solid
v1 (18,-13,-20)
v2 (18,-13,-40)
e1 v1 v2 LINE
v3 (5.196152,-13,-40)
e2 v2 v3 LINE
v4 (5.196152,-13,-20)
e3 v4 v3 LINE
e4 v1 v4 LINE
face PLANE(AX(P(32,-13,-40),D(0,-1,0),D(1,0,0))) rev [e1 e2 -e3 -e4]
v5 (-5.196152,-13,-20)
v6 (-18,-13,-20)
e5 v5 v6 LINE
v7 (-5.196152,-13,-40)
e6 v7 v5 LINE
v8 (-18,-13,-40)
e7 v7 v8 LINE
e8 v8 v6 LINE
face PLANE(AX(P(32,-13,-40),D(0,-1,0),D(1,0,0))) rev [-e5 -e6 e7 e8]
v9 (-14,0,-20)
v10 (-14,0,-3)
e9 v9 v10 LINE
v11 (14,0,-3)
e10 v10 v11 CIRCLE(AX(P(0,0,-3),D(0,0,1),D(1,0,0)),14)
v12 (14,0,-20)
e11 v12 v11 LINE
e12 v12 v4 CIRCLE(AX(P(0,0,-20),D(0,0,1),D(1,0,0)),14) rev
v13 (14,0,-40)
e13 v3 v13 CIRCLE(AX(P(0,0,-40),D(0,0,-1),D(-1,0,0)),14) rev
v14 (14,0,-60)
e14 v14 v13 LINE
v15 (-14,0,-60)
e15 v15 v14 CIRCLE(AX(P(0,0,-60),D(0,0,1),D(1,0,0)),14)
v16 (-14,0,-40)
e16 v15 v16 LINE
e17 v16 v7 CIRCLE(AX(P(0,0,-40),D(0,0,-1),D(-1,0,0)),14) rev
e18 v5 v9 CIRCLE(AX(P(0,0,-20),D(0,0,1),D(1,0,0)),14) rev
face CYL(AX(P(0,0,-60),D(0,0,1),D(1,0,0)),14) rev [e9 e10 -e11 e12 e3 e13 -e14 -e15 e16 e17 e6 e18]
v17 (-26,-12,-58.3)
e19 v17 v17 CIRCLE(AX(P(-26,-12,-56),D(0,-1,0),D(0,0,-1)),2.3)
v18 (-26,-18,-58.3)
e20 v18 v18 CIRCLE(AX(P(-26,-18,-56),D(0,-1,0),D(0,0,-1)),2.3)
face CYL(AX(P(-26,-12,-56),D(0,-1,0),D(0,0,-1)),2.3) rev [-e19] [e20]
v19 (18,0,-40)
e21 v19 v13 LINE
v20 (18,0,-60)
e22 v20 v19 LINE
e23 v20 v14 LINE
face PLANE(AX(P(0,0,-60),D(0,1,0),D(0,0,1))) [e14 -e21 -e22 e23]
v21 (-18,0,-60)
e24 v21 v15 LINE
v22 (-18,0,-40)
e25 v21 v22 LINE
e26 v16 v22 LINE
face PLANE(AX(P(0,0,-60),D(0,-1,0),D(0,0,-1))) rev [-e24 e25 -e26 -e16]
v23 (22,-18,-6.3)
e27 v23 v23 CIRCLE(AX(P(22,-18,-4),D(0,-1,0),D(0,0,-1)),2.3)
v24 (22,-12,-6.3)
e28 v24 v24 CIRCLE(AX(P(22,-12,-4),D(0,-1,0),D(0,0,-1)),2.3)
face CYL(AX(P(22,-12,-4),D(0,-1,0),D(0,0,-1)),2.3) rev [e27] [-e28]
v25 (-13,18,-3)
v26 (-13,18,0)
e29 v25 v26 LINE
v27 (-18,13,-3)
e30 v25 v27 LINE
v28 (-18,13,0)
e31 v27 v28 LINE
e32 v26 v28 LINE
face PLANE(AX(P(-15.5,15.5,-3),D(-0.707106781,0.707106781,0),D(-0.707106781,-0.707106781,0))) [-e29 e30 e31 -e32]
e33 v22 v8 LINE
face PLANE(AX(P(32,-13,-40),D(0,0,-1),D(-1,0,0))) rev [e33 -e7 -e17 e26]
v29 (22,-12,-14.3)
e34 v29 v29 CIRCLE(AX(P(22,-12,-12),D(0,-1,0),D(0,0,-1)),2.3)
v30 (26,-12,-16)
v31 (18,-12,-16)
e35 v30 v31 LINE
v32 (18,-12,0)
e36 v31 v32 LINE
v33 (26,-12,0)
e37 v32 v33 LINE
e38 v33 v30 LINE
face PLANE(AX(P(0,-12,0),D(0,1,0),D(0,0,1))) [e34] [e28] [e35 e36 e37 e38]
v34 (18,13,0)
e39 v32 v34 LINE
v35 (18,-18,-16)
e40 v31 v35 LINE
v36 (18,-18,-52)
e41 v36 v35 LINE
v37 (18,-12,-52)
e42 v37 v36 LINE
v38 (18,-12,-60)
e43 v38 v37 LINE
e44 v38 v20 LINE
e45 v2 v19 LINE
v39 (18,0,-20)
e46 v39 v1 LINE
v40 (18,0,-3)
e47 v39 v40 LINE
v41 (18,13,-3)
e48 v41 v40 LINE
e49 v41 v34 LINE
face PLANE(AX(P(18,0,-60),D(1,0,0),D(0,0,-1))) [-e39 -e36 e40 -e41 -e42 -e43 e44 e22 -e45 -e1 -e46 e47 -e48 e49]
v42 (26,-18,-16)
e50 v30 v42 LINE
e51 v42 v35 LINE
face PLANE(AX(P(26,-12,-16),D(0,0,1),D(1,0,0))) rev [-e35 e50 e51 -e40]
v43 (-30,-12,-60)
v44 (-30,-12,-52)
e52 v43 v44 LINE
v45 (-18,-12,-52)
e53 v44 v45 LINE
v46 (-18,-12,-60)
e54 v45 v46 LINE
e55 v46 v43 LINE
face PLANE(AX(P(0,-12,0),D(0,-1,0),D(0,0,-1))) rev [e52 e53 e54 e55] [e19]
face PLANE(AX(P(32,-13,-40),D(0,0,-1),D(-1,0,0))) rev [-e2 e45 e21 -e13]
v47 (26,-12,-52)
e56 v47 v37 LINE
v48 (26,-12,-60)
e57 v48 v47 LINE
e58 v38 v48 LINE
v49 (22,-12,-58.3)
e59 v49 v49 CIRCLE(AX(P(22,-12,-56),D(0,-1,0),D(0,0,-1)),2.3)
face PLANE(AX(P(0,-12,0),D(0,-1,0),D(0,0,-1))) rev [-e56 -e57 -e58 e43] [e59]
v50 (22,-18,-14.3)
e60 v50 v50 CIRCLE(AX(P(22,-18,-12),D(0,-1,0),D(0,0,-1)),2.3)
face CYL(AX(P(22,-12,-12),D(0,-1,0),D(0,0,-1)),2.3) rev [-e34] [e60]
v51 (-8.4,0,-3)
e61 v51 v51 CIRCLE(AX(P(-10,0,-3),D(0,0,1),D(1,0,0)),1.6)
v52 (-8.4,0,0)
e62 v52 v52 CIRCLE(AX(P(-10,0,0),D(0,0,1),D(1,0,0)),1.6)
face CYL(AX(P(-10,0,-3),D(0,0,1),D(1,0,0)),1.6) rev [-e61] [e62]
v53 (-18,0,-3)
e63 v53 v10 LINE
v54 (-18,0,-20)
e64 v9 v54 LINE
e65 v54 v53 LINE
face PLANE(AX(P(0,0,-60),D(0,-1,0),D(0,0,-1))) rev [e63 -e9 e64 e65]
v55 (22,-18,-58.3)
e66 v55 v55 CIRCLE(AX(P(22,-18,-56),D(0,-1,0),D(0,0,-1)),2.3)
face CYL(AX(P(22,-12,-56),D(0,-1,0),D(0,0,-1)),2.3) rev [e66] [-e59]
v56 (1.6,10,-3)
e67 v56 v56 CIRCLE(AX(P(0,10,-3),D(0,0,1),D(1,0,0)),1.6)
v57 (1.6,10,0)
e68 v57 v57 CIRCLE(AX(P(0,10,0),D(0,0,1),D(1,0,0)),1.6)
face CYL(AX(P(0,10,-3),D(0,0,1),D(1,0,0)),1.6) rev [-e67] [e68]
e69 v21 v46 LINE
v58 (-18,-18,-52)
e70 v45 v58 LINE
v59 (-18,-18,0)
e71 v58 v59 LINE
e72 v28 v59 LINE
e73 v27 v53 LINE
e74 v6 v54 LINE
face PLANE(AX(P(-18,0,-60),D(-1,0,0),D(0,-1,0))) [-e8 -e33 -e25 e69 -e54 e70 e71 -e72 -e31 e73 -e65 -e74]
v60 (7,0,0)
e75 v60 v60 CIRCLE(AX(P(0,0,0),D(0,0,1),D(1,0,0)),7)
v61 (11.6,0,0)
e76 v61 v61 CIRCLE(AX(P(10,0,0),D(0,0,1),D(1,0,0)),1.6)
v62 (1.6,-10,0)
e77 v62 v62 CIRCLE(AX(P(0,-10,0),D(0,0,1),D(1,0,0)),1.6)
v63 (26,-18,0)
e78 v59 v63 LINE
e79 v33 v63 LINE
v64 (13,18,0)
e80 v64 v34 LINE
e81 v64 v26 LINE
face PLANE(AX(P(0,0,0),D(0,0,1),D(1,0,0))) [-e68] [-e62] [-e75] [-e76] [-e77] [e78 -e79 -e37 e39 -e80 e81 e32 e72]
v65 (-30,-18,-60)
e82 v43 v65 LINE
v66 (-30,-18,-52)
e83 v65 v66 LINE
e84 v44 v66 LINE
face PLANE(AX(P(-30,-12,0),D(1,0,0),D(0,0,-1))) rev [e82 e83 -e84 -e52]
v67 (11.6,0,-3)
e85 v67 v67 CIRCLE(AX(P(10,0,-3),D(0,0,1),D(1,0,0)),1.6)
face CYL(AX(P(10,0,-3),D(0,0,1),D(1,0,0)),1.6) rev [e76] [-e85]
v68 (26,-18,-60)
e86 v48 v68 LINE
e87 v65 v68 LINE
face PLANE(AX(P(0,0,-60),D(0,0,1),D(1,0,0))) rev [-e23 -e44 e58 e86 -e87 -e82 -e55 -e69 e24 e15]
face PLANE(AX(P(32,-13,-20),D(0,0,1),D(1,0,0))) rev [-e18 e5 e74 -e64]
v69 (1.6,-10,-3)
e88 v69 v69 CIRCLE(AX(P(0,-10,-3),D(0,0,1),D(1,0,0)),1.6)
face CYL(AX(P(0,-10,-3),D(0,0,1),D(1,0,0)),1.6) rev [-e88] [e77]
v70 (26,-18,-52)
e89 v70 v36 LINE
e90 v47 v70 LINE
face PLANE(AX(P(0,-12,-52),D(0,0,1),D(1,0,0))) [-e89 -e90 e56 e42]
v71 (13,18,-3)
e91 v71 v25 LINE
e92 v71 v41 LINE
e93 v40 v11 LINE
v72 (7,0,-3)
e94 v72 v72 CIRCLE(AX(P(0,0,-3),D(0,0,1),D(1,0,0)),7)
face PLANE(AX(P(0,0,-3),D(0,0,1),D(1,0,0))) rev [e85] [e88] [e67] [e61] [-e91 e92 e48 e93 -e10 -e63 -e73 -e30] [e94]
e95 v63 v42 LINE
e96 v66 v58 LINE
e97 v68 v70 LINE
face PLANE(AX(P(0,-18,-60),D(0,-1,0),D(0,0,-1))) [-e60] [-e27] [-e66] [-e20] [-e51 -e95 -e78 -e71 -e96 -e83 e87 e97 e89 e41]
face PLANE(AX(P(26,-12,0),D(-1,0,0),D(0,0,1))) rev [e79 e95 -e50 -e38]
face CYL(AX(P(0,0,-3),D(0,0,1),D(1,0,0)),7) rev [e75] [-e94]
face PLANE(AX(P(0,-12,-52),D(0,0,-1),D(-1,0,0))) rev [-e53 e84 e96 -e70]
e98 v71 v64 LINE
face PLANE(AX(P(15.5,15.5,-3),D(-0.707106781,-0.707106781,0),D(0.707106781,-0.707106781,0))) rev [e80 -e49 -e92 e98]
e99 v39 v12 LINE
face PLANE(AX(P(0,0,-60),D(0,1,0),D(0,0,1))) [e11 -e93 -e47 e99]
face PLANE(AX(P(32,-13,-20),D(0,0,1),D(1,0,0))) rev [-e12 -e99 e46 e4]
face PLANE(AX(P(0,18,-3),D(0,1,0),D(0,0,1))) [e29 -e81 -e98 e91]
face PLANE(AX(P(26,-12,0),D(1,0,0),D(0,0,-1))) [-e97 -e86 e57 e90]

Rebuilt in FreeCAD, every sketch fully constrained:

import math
import FreeCAD as App
import Part
import Sketcher

doc = App.newDocument("Part")
body = doc.addObject("PartDesign::Body", "Body")

sketch1 = body.newObject("Sketcher::SketchObject", "Sketch")
sketch1.AttachmentSupport = (doc.getObject("XY_Plane"), [""])
sketch1.MapMode = "FlatFace"
sketch1.addGeometry(Part.LineSegment(App.Vector(18, -18, 0), App.Vector(18, 0, 0)), False)
sketch1.addGeometry(Part.LineSegment(App.Vector(18, 0, 0), App.Vector(14, 0, 0)), False)
sketch1.addGeometry(Part.ArcOfCircle(Part.Circle(App.Vector(0, 0, 0), App.Vector(0, 0, 1), 14), math.radians(180), math.radians(360)), False)
sketch1.addGeometry(Part.LineSegment(App.Vector(-14, 0, 0), App.Vector(-18, 0, 0)), False)
sketch1.addGeometry(Part.LineSegment(App.Vector(-18, 0, 0), App.Vector(-18, -18, 0)), False)
sketch1.addGeometry(Part.LineSegment(App.Vector(-18, -18, 0), App.Vector(18, -18, 0)), False)
sketch1.addConstraint(Sketcher.Constraint("Coincident", 0, 2, 1, 1))
sketch1.addConstraint(Sketcher.Constraint("Coincident", 1, 2, 2, 2))
sketch1.addConstraint(Sketcher.Constraint("Coincident", 2, 1, 3, 1))
sketch1.addConstraint(Sketcher.Constraint("Coincident", 3, 2, 4, 1))
sketch1.addConstraint(Sketcher.Constraint("Coincident", 4, 2, 5, 1))
sketch1.addConstraint(Sketcher.Constraint("Coincident", 5, 2, 0, 1))
sketch1.addConstraint(Sketcher.Constraint("Vertical", 0))
sketch1.addConstraint(Sketcher.Constraint("Horizontal", 1))
sketch1.addConstraint(Sketcher.Constraint("Horizontal", 3))
sketch1.addConstraint(Sketcher.Constraint("Vertical", 4))
sketch1.addConstraint(Sketcher.Constraint("Horizontal", 5))
sketch1.addConstraint(Sketcher.Constraint("Coincident", 2, 3, -1, 1))
sketch1.addConstraint(Sketcher.Constraint("Symmetric", 0, 2, 3, 2, -1, 1))
sketch1.addConstraint(Sketcher.Constraint("PointOnObject", 0, 2, -1))
sketch1.addConstraint(Sketcher.Constraint("Radius", 2, 14.0))
sketch1.addConstraint(Sketcher.Constraint("DistanceX", 1, 2, 1, 1, 4.0))
sketch1.addConstraint(Sketcher.Constraint("DistanceY", 0, 1, 0, 2, 18.0))
pad1 = body.newObject("PartDesign::Pad", "Pad")
pad1.Profile = sketch1
pad1.Length = 60
pad1.Reversed = True

sketch2 = body.newObject("Sketcher::SketchObject", "Sketch001")
sketch2.AttachmentSupport = (doc.getObject("XY_Plane"), [""])
sketch2.MapMode = "FlatFace"
sketch2.addGeometry(Part.LineSegment(App.Vector(-13, 18, 0), App.Vector(-18, 13, 0)), False)
sketch2.addGeometry(Part.LineSegment(App.Vector(-18, 13, 0), App.Vector(-18, 0, 0)), False)
sketch2.addGeometry(Part.LineSegment(App.Vector(-18, 0, 0), App.Vector(-14, 0, 0)), False)
sketch2.addGeometry(Part.ArcOfCircle(Part.Circle(App.Vector(0, 0, 0), App.Vector(0, 0, 1), 14), math.radians(180), math.radians(360)), False)
sketch2.addGeometry(Part.LineSegment(App.Vector(14, 0, 0), App.Vector(18, 0, 0)), False)
sketch2.addGeometry(Part.LineSegment(App.Vector(18, 0, 0), App.Vector(18, 13, 0)), False)
sketch2.addGeometry(Part.LineSegment(App.Vector(18, 13, 0), App.Vector(13, 18, 0)), False)
sketch2.addGeometry(Part.LineSegment(App.Vector(13, 18, 0), App.Vector(-13, 18, 0)), False)
sketch2.addGeometry(Part.Circle(App.Vector(0, -10, 0), App.Vector(0, 0, 1), 1.6), False)
sketch2.addGeometry(Part.Circle(App.Vector(-10, 0, 0), App.Vector(0, 0, 1), 1.6), False)
sketch2.addGeometry(Part.Circle(App.Vector(0, 0, 0), App.Vector(0, 0, 1), 7), False)
sketch2.addGeometry(Part.Circle(App.Vector(10, 0, 0), App.Vector(0, 0, 1), 1.6), False)
sketch2.addGeometry(Part.Circle(App.Vector(0, 10, 0), App.Vector(0, 0, 1), 1.6), False)
sketch2.addConstraint(Sketcher.Constraint("Coincident", 0, 2, 1, 1))
sketch2.addConstraint(Sketcher.Constraint("Coincident", 1, 2, 2, 1))
sketch2.addConstraint(Sketcher.Constraint("Coincident", 2, 2, 3, 1))
sketch2.addConstraint(Sketcher.Constraint("Coincident", 3, 2, 4, 1))
sketch2.addConstraint(Sketcher.Constraint("Coincident", 4, 2, 5, 1))
sketch2.addConstraint(Sketcher.Constraint("Coincident", 5, 2, 6, 1))
sketch2.addConstraint(Sketcher.Constraint("Coincident", 6, 2, 7, 1))
sketch2.addConstraint(Sketcher.Constraint("Coincident", 7, 2, 0, 1))
sketch2.addConstraint(Sketcher.Constraint("Vertical", 1))
sketch2.addConstraint(Sketcher.Constraint("Horizontal", 2))
sketch2.addConstraint(Sketcher.Constraint("Horizontal", 4))
sketch2.addConstraint(Sketcher.Constraint("Vertical", 5))
sketch2.addConstraint(Sketcher.Constraint("Horizontal", 7))
sketch2.addConstraint(Sketcher.Constraint("Coincident", 3, 3, -1, 1))
sketch2.addConstraint(Sketcher.Constraint("Coincident", 10, 3, -1, 1))
sketch2.addConstraint(Sketcher.Constraint("Equal", 8, 9))
sketch2.addConstraint(Sketcher.Constraint("Equal", 9, 11))
sketch2.addConstraint(Sketcher.Constraint("Equal", 11, 12))
sketch2.addConstraint(Sketcher.Constraint("Symmetric", 9, 3, 11, 3, -1, 1))
sketch2.addConstraint(Sketcher.Constraint("Symmetric", 8, 3, 12, 3, -1, 1))
sketch2.addConstraint(Sketcher.Constraint("Symmetric", 1, 2, 4, 2, -1, 1))
sketch2.addConstraint(Sketcher.Constraint("PointOnObject", 8, 3, -2))
sketch2.addConstraint(Sketcher.Constraint("PointOnObject", 9, 3, -1))
sketch2.addConstraint(Sketcher.Constraint("PointOnObject", 1, 2, -1))
sketch2.addConstraint(Sketcher.Constraint("Perpendicular", 0, 6))
sketch2.addConstraint(Sketcher.Constraint("Horizontal", 0, 2, 5, 2))
sketch2.addConstraint(Sketcher.Constraint("Equal", 0, 6))
sketch2.addConstraint(Sketcher.Constraint("Diameter", 10, 14.0))
sketch2.addConstraint(Sketcher.Constraint("Radius", 3, 14.0))
sketch2.addConstraint(Sketcher.Constraint("Diameter", 8, 3.2))
sketch2.addConstraint(Sketcher.Constraint("DistanceX", 2, 1, 2, 2, 4.0))
sketch2.addConstraint(Sketcher.Constraint("DistanceX", 7, 2, 7, 1, 26.0))
sketch2.addConstraint(Sketcher.Constraint("DistanceY", 1, 2, 1, 1, 13.0))
sketch2.addConstraint(Sketcher.Constraint("DistanceY", 8, 3, -1, 1, 10.0))
sketch2.addConstraint(Sketcher.Constraint("DistanceX", 9, 3, -1, 1, 10.0))
pad2 = body.newObject("PartDesign::Pad", "Pad001")
pad2.Profile = sketch2
pad2.Length = 3
pad2.Reversed = True

sketch3 = body.newObject("Sketcher::SketchObject", "Sketch002")
sketch3.AttachmentSupport = (doc.getObject("YZ_Plane"), [""])
sketch3.MapMode = "FlatFace"
sketch3.AttachmentOffset = App.Placement(App.Vector(0, 0, -18), App.Rotation())
sketch3.addGeometry(Part.LineSegment(App.Vector(0, -20, 0), App.Vector(0, -40, 0)), False)
sketch3.addGeometry(Part.LineSegment(App.Vector(0, -40, 0), App.Vector(-13, -40, 0)), False)
sketch3.addGeometry(Part.LineSegment(App.Vector(-13, -40, 0), App.Vector(-13, -20, 0)), False)
sketch3.addGeometry(Part.LineSegment(App.Vector(-13, -20, 0), App.Vector(0, -20, 0)), False)
sketch3.addConstraint(Sketcher.Constraint("Coincident", 0, 2, 1, 1))
sketch3.addConstraint(Sketcher.Constraint("Coincident", 1, 2, 2, 1))
sketch3.addConstraint(Sketcher.Constraint("Coincident", 2, 2, 3, 1))
sketch3.addConstraint(Sketcher.Constraint("Coincident", 3, 2, 0, 1))
sketch3.addConstraint(Sketcher.Constraint("Vertical", 0))
sketch3.addConstraint(Sketcher.Constraint("Horizontal", 1))
sketch3.addConstraint(Sketcher.Constraint("Vertical", 2))
sketch3.addConstraint(Sketcher.Constraint("Horizontal", 3))
sketch3.addConstraint(Sketcher.Constraint("PointOnObject", 0, 2, -2))
sketch3.addConstraint(Sketcher.Constraint("DistanceX", 1, 2, 1, 1, 13.0))
sketch3.addConstraint(Sketcher.Constraint("DistanceY", 0, 2, 0, 1, 20.0))
sketch3.addConstraint(Sketcher.Constraint("DistanceY", 0, 2, -1, 1, 40.0))
pocket1 = body.newObject("PartDesign::Pocket", "Pocket")
pocket1.Profile = sketch3
pocket1.Length = 50
pocket1.Reversed = True

sketch4 = body.newObject("Sketcher::SketchObject", "Sketch003")
sketch4.AttachmentSupport = (doc.getObject("XZ_Plane"), [""])
sketch4.MapMode = "FlatFace"
sketch4.AttachmentOffset = App.Placement(App.Vector(0, 0, 18), App.Rotation())
sketch4.addGeometry(Part.LineSegment(App.Vector(18, -52, 0), App.Vector(18, -60, 0)), False)
sketch4.addGeometry(Part.LineSegment(App.Vector(18, -60, 0), App.Vector(26, -60, 0)), False)
sketch4.addGeometry(Part.LineSegment(App.Vector(26, -60, 0), App.Vector(26, -52, 0)), False)
sketch4.addGeometry(Part.LineSegment(App.Vector(26, -52, 0), App.Vector(18, -52, 0)), False)
sketch4.addGeometry(Part.Circle(App.Vector(22, -56, 0), App.Vector(0, 0, 1), 2.3), False)
sketch4.addGeometry(Part.LineSegment(App.Vector(18, 0, 0), App.Vector(18, -16, 0)), False)
sketch4.addGeometry(Part.LineSegment(App.Vector(18, -16, 0), App.Vector(26, -16, 0)), False)
sketch4.addGeometry(Part.LineSegment(App.Vector(26, -16, 0), App.Vector(26, 0, 0)), False)
sketch4.addGeometry(Part.LineSegment(App.Vector(26, 0, 0), App.Vector(18, 0, 0)), False)
sketch4.addGeometry(Part.Circle(App.Vector(22, -12, 0), App.Vector(0, 0, 1), 2.3), False)
sketch4.addGeometry(Part.Circle(App.Vector(22, -4, 0), App.Vector(0, 0, 1), 2.3), False)
sketch4.addGeometry(Part.LineSegment(App.Vector(-30, -52, 0), App.Vector(-30, -60, 0)), False)
sketch4.addGeometry(Part.LineSegment(App.Vector(-30, -60, 0), App.Vector(-18, -60, 0)), False)
sketch4.addGeometry(Part.LineSegment(App.Vector(-18, -60, 0), App.Vector(-18, -52, 0)), False)
sketch4.addGeometry(Part.LineSegment(App.Vector(-18, -52, 0), App.Vector(-30, -52, 0)), False)
sketch4.addGeometry(Part.Circle(App.Vector(-26, -56, 0), App.Vector(0, 0, 1), 2.3), False)
sketch4.addConstraint(Sketcher.Constraint("Coincident", 0, 2, 1, 1))
sketch4.addConstraint(Sketcher.Constraint("Coincident", 1, 2, 2, 1))
sketch4.addConstraint(Sketcher.Constraint("Coincident", 2, 2, 3, 1))
sketch4.addConstraint(Sketcher.Constraint("Coincident", 3, 2, 0, 1))
sketch4.addConstraint(Sketcher.Constraint("Coincident", 5, 2, 6, 1))
sketch4.addConstraint(Sketcher.Constraint("Coincident", 6, 2, 7, 1))
sketch4.addConstraint(Sketcher.Constraint("Coincident", 7, 2, 8, 1))
sketch4.addConstraint(Sketcher.Constraint("Coincident", 8, 2, 5, 1))
sketch4.addConstraint(Sketcher.Constraint("Coincident", 11, 2, 12, 1))
sketch4.addConstraint(Sketcher.Constraint("Coincident", 12, 2, 13, 1))
sketch4.addConstraint(Sketcher.Constraint("Coincident", 13, 2, 14, 1))
sketch4.addConstraint(Sketcher.Constraint("Coincident", 14, 2, 11, 1))
sketch4.addConstraint(Sketcher.Constraint("Vertical", 0))
sketch4.addConstraint(Sketcher.Constraint("Horizontal", 1))
sketch4.addConstraint(Sketcher.Constraint("Vertical", 2))
sketch4.addConstraint(Sketcher.Constraint("Horizontal", 3))
sketch4.addConstraint(Sketcher.Constraint("Vertical", 5))
sketch4.addConstraint(Sketcher.Constraint("Horizontal", 6))
sketch4.addConstraint(Sketcher.Constraint("Vertical", 7))
sketch4.addConstraint(Sketcher.Constraint("Horizontal", 8))
sketch4.addConstraint(Sketcher.Constraint("Vertical", 11))
sketch4.addConstraint(Sketcher.Constraint("Horizontal", 12))
sketch4.addConstraint(Sketcher.Constraint("Vertical", 13))
sketch4.addConstraint(Sketcher.Constraint("Horizontal", 14))
sketch4.addConstraint(Sketcher.Constraint("Equal", 4, 9))
sketch4.addConstraint(Sketcher.Constraint("Equal", 9, 10))
sketch4.addConstraint(Sketcher.Constraint("Equal", 10, 15))
sketch4.addConstraint(Sketcher.Constraint("Symmetric", 0, 2, 12, 2, -2))
sketch4.addConstraint(Sketcher.Constraint("PointOnObject", 7, 2, -1))
sketch4.addConstraint(Sketcher.Constraint("Horizontal", 4, 3, 15, 3))
sketch4.addConstraint(Sketcher.Constraint("Horizontal", 3, 2, 13, 2))
sketch4.addConstraint(Sketcher.Constraint("Vertical", 4, 3, 9, 3))
sketch4.addConstraint(Sketcher.Constraint("Vertical", 9, 3, 10, 3))
sketch4.addConstraint(Sketcher.Constraint("Vertical", 3, 2, 5, 2))
sketch4.addConstraint(Sketcher.Constraint("Vertical", 2, 2, 6, 2))
sketch4.addConstraint(Sketcher.Constraint("Equal", 8, 0))
sketch4.addConstraint(Sketcher.Constraint("Diameter", 4, 4.6))
sketch4.addConstraint(Sketcher.Constraint("DistanceX", 1, 1, 1, 2, 8.0))
sketch4.addConstraint(Sketcher.Constraint("DistanceX", 12, 1, 12, 2, 12.0))
sketch4.addConstraint(Sketcher.Constraint("DistanceY", 5, 2, 5, 1, 16.0))
sketch4.addConstraint(Sketcher.Constraint("DistanceX", -1, 1, 4, 3, 22.0))
sketch4.addConstraint(Sketcher.Constraint("DistanceY", 4, 3, -1, 1, 56.0))
sketch4.addConstraint(Sketcher.Constraint("DistanceY", 9, 3, -1, 1, 12.0))
sketch4.addConstraint(Sketcher.Constraint("DistanceY", 10, 3, -1, 1, 4.0))
sketch4.addConstraint(Sketcher.Constraint("DistanceX", 15, 3, -1, 1, 26.0))
sketch4.addConstraint(Sketcher.Constraint("DistanceX", -1, 1, 0, 2, 18.0))
sketch4.addConstraint(Sketcher.Constraint("DistanceY", 0, 2, -1, 1, 60.0))
pad3 = body.newObject("PartDesign::Pad", "Pad002")
pad3.Profile = sketch4
pad3.Length = 6
pad3.Reversed = True

doc.recompute()
